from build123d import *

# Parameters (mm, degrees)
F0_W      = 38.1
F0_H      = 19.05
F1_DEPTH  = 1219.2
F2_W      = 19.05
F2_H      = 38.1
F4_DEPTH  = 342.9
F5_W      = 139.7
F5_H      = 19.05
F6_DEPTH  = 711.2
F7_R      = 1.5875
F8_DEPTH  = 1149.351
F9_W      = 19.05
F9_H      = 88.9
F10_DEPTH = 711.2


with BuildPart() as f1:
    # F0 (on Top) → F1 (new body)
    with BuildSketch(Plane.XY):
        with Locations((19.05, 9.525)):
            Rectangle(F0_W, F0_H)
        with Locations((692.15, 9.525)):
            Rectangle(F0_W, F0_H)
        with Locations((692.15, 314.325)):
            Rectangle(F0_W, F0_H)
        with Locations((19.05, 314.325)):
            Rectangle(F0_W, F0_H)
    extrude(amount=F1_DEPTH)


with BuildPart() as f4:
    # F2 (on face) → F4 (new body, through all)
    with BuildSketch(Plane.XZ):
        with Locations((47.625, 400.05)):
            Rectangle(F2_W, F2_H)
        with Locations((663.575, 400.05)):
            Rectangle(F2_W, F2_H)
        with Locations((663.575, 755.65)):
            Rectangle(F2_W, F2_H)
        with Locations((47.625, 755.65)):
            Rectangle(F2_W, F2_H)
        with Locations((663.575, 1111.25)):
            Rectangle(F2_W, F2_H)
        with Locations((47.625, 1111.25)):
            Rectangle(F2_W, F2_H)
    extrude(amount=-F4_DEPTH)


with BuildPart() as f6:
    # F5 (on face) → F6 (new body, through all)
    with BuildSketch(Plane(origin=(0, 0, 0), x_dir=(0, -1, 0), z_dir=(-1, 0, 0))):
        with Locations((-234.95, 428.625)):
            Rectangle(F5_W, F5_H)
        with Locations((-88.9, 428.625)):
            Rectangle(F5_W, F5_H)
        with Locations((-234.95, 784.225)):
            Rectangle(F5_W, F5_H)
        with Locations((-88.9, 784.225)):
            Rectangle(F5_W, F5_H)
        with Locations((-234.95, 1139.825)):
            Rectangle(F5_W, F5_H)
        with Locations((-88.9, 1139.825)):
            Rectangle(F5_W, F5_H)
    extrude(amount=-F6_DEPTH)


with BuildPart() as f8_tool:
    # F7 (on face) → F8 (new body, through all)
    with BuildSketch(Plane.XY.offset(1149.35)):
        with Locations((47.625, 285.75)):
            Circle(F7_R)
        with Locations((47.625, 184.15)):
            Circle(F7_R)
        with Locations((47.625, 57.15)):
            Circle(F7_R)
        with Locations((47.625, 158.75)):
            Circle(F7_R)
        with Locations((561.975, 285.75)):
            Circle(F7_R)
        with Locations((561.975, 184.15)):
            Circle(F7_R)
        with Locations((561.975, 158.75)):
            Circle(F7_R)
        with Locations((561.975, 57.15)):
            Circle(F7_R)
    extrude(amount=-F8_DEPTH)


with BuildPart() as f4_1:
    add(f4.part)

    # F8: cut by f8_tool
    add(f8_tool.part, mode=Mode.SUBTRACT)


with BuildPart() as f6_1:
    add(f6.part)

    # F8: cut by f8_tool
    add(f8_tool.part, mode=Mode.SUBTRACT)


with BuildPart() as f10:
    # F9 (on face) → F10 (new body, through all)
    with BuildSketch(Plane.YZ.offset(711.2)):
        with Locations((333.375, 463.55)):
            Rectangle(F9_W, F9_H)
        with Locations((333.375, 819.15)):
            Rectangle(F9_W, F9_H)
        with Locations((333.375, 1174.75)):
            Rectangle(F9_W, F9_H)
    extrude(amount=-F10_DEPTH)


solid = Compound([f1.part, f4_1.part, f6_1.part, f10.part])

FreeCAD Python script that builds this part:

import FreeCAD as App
import Part
import Sketcher
from FreeCAD import Vector
Q = App.Units.Quantity

doc = App.newDocument("Part")
body = doc.addObject("PartDesign::Body", "Body")
body.AllowCompound = True

# Sketch on XY plane
sketch1 = body.newObject("Sketcher::SketchObject", "Sketch")
sketch1.AttachmentSupport = (doc.getObject("XY_Plane"), [""])
sketch1.MapMode = "FlatFace"
sketch1.addGeometry([
    Part.LineSegment(Vector(0, 19, 0), Vector(0, 0, 0)),  # 0
    Part.LineSegment(Vector(0, 0, 0), Vector(38, 0, 0)),  # 1
    Part.LineSegment(Vector(38, 0, 0), Vector(38, 19, 0)),  # 2
    Part.LineSegment(Vector(38, 19, 0), Vector(0, 19, 0)),  # 3
    Part.LineSegment(Vector(673, 19, 0), Vector(673, 0, 0)),  # 4
    Part.LineSegment(Vector(673, 0, 0), Vector(711, 0, 0)),  # 5
    Part.LineSegment(Vector(711, 0, 0), Vector(711, 19, 0)),  # 6
    Part.LineSegment(Vector(711, 19, 0), Vector(673, 19, 0)),  # 7
    Part.LineSegment(Vector(673, 324, 0), Vector(673, 305, 0)),  # 8
    Part.LineSegment(Vector(673, 305, 0), Vector(711, 305, 0)),  # 9
    Part.LineSegment(Vector(711, 305, 0), Vector(711, 324, 0)),  # 10
    Part.LineSegment(Vector(711, 324, 0), Vector(673, 324, 0)),  # 11
    Part.LineSegment(Vector(0, 324, 0), Vector(0, 305, 0)),  # 12
    Part.LineSegment(Vector(0, 305, 0), Vector(38, 305, 0)),  # 13
    Part.LineSegment(Vector(38, 305, 0), Vector(38, 324, 0)),  # 14
    Part.LineSegment(Vector(38, 324, 0), Vector(0, 324, 0)),  # 15
], False)
sketch1.addConstraint([
    Sketcher.Constraint("Coincident", 0, 2, 1, 1),
    Sketcher.Constraint("Coincident", 1, 2, 2, 1),
    Sketcher.Constraint("Coincident", 2, 2, 3, 1),
    Sketcher.Constraint("Coincident", 3, 2, 0, 1),
    Sketcher.Constraint("Coincident", 4, 2, 5, 1),
    Sketcher.Constraint("Coincident", 5, 2, 6, 1),
    Sketcher.Constraint("Coincident", 6, 2, 7, 1),
    Sketcher.Constraint("Coincident", 7, 2, 4, 1),
    Sketcher.Constraint("Coincident", 8, 2, 9, 1),
    Sketcher.Constraint("Coincident", 9, 2, 10, 1),
    Sketcher.Constraint("Coincident", 10, 2, 11, 1),
    Sketcher.Constraint("Coincident", 11, 2, 8, 1),
    Sketcher.Constraint("Coincident", 12, 2, 13, 1),
    Sketcher.Constraint("Coincident", 13, 2, 14, 1),
    Sketcher.Constraint("Coincident", 14, 2, 15, 1),
    Sketcher.Constraint("Coincident", 15, 2, 12, 1),
    Sketcher.Constraint("Vertical", 0),
    Sketcher.Constraint("Horizontal", 1),
    Sketcher.Constraint("Vertical", 2),
    Sketcher.Constraint("Horizontal", 3),
    Sketcher.Constraint("Vertical", 4),
    Sketcher.Constraint("Horizontal", 5),
    Sketcher.Constraint("Vertical", 6),
    Sketcher.Constraint("Horizontal", 7),
    Sketcher.Constraint("Vertical", 8),
    Sketcher.Constraint("Horizontal", 9),
    Sketcher.Constraint("Vertical", 10),
    Sketcher.Constraint("Horizontal", 11),
    Sketcher.Constraint("Vertical", 12),
    Sketcher.Constraint("Horizontal", 13),
    Sketcher.Constraint("Vertical", 14),
    Sketcher.Constraint("Horizontal", 15),
    Sketcher.Constraint("Coincident", 0, 2, -1, 1),
    Sketcher.Constraint("PointOnObject", 4, 2, -1),
    Sketcher.Constraint("PointOnObject", 12, 2, -2),
    Sketcher.Constraint("Horizontal", 3, 2, 6, 2),
    Sketcher.Constraint("Horizontal", 9, 2, 12, 2),
    Sketcher.Constraint("Horizontal", 11, 2, 14, 2),
    Sketcher.Constraint("Vertical", 7, 2, 8, 2),
    Sketcher.Constraint("Vertical", 6, 2, 9, 2),
    Sketcher.Constraint("Vertical", 2, 2, 13, 2),
    Sketcher.Constraint("Equal", 3, 5),
    Sketcher.Constraint("Equal", 6, 8),
    Sketcher.Constraint("DistanceX", 1, 1, 1, 2, Q("1.5 in")),
    Sketcher.Constraint("DistanceX", -1, 1, 5, 2, Q("28 in")),
    Sketcher.Constraint("DistanceY", -1, 1, 8, 2, Q("12 in")),
    Sketcher.Constraint("DistanceY", 0, 2, 0, 1, Q("0.75 in")),
])
pad1 = body.newObject("PartDesign::Pad", "Pad")
pad1.Profile = sketch1
pad1.Length = Q("48 in")
body2 = doc.addObject("PartDesign::Body", "Body001")
body2.AllowCompound = True

# Sketch on XZ plane
sketch2 = body2.newObject("Sketcher::SketchObject", "Sketch001")
sketch2.AttachmentSupport = (doc.getObject("XZ_Plane001"), [""])
sketch2.MapMode = "FlatFace"
sketch2.addGeometry([
    Part.LineSegment(Vector(38, 419, 0), Vector(38, 381, 0)),  # 0
    Part.LineSegment(Vector(38, 381, 0), Vector(57, 381, 0)),  # 1
    Part.LineSegment(Vector(57, 381, 0), Vector(57, 419, 0)),  # 2
    Part.LineSegment(Vector(57, 419, 0), Vector(38, 419, 0)),  # 3
    Part.LineSegment(Vector(654, 419, 0), Vector(654, 381, 0)),  # 4
    Part.LineSegment(Vector(654, 381, 0), Vector(673, 381, 0)),  # 5
    Part.LineSegment(Vector(673, 381, 0), Vector(673, 419, 0)),  # 6
    Part.LineSegment(Vector(673, 419, 0), Vector(654, 419, 0)),  # 7
    Part.LineSegment(Vector(654, 775, 0), Vector(654, 737, 0)),  # 8
    Part.LineSegment(Vector(654, 737, 0), Vector(673, 737, 0)),  # 9
    Part.LineSegment(Vector(673, 737, 0), Vector(673, 775, 0)),  # 10
    Part.LineSegment(Vector(673, 775, 0), Vector(654, 775, 0)),  # 11
    Part.LineSegment(Vector(38, 775, 0), Vector(38, 737, 0)),  # 12
    Part.LineSegment(Vector(38, 737, 0), Vector(57, 737, 0)),  # 13
    Part.LineSegment(Vector(57, 737, 0), Vector(57, 775, 0)),  # 14
    Part.LineSegment(Vector(57, 775, 0), Vector(38, 775, 0)),  # 15
    Part.LineSegment(Vector(654, 1130, 0), Vector(654, 1092, 0)),  # 16
    Part.LineSegment(Vector(654, 1092, 0), Vector(673, 1092, 0)),  # 17
    Part.LineSegment(Vector(673, 1092, 0), Vector(673, 1130, 0)),  # 18
    Part.LineSegment(Vector(673, 1130, 0), Vector(654, 1130, 0)),  # 19
    Part.LineSegment(Vector(38, 1130, 0), Vector(38, 1092, 0)),  # 20
    Part.LineSegment(Vector(38, 1092, 0), Vector(57, 1092, 0)),  # 21
    Part.LineSegment(Vector(57, 1092, 0), Vector(57, 1130, 0)),  # 22
    Part.LineSegment(Vector(57, 1130, 0), Vector(38, 1130, 0)),  # 23
], False)
sketch2.addConstraint([
    Sketcher.Constraint("Coincident", 0, 2, 1, 1),
    Sketcher.Constraint("Coincident", 1, 2, 2, 1),
    Sketcher.Constraint("Coincident", 2, 2, 3, 1),
    Sketcher.Constraint("Coincident", 3, 2, 0, 1),
    Sketcher.Constraint("Coincident", 4, 2, 5, 1),
    Sketcher.Constraint("Coincident", 5, 2, 6, 1),
    Sketcher.Constraint("Coincident", 6, 2, 7, 1),
    Sketcher.Constraint("Coincident", 7, 2, 4, 1),
    Sketcher.Constraint("Coincident", 8, 2, 9, 1),
    Sketcher.Constraint("Coincident", 9, 2, 10, 1),
    Sketcher.Constraint("Coincident", 10, 2, 11, 1),
    Sketcher.Constraint("Coincident", 11, 2, 8, 1),
    Sketcher.Constraint("Coincident", 12, 2, 13, 1),
    Sketcher.Constraint("Coincident", 13, 2, 14, 1),
    Sketcher.Constraint("Coincident", 14, 2, 15, 1),
    Sketcher.Constraint("Coincident", 15, 2, 12, 1),
    Sketcher.Constraint("Coincident", 16, 2, 17, 1),
    Sketcher.Constraint("Coincident", 17, 2, 18, 1),
    Sketcher.Constraint("Coincident", 18, 2, 19, 1),
    Sketcher.Constraint("Coincident", 19, 2, 16, 1),
    Sketcher.Constraint("Coincident", 20, 2, 21, 1),
    Sketcher.Constraint("Coincident", 21, 2, 22, 1),
    Sketcher.Constraint("Coincident", 22, 2, 23, 1),
    Sketcher.Constraint("Coincident", 23, 2, 20, 1),
    Sketcher.Constraint("Vertical", 0),
    Sketcher.Constraint("Horizontal", 1),
    Sketcher.Constraint("Vertical", 2),
    Sketcher.Constraint("Horizontal", 3),
    Sketcher.Constraint("Vertical", 4),
    Sketcher.Constraint("Horizontal", 5),
    Sketcher.Constraint("Vertical", 6),
    Sketcher.Constraint("Horizontal", 7),
    Sketcher.Constraint("Vertical", 8),
    Sketcher.Constraint("Horizontal", 9),
    Sketcher.Constraint("Vertical", 10),
    Sketcher.Constraint("Horizontal", 11),
    Sketcher.Constraint("Vertical", 12),
    Sketcher.Constraint("Horizontal", 13),
    Sketcher.Constraint("Vertical", 14),
    Sketcher.Constraint("Horizontal", 15),
    Sketcher.Constraint("Vertical", 16),
    Sketcher.Constraint("Horizontal", 17),
    Sketcher.Constraint("Vertical", 18),
    Sketcher.Constraint("Horizontal", 19),
    Sketcher.Constraint("Vertical", 20),
    Sketcher.Constraint("Horizontal", 21),
    Sketcher.Constraint("Vertical", 22),
    Sketcher.Constraint("Horizontal", 23),
    Sketcher.Constraint("Horizontal", 1, 2, 4, 2),
    Sketcher.Constraint("Horizontal", 3, 2, 6, 2),
    Sketcher.Constraint("Horizontal", 9, 2, 12, 2),
    Sketcher.Constraint("Horizontal", 11, 2, 14, 2),
    Sketcher.Constraint("Horizontal", 17, 2, 20, 2),
    Sketcher.Constraint("Horizontal", 19, 2, 22, 2),
    Sketcher.Constraint("Vertical", 7, 2, 8, 2),
    Sketcher.Constraint("Vertical", 6, 2, 9, 2),
    Sketcher.Constraint("Vertical", 3, 2, 12, 2),
    Sketcher.Constraint("Vertical", 2, 2, 13, 2),
    Sketcher.Constraint("Vertical", 11, 2, 16, 2),
    Sketcher.Constraint("Vertical", 10, 2, 17, 2),
    Sketcher.Constraint("Vertical", 15, 2, 20, 2),
    Sketcher.Constraint("Vertical", 14, 2, 21, 2),
    Sketcher.Constraint("Equal", 3, 5),
    Sketcher.Constraint("Equal", 6, 8),
    Sketcher.Constraint("Equal", 14, 16),
    Sketcher.Constraint("DistanceY", 0, 2, 0, 1, Q("1.5 in")),
    Sketcher.Constraint("DistanceY", -1, 1, 0, 2, Q("15 in")),
    Sketcher.Constraint("DistanceY", -1, 1, 8, 2, Q("29 in")),
    Sketcher.Constraint("DistanceY", -1, 1, 16, 2, Q("43 in")),
    Sketcher.Constraint("DistanceX", 0, 2, 5, 2, Q("25 in")),
    Sketcher.Constraint("DistanceX", 1, 1, 1, 2, Q("0.75 in")),
    Sketcher.Constraint("DistanceX", -1, 1, 0, 2, Q("1.5 in")),
])
pad2 = body2.newObject("PartDesign::Pad", "Pad001")
pad2.Profile = sketch2
pad2.Length = Q("13.5 in")
pad2.Reversed = True
body3 = doc.addObject("PartDesign::Body", "Body002")
body3.AllowCompound = True

# Sketch on YZ plane
sketch3 = body3.newObject("Sketcher::SketchObject", "Sketch002")
sketch3.AttachmentSupport = (doc.getObject("YZ_Plane002"), [""])
sketch3.MapMode = "FlatFace"
sketch3.addGeometry([
    Part.LineSegment(Vector(305, 438, 0), Vector(305, 419, 0)),  # 0
    Part.LineSegment(Vector(305, 419, 0), Vector(165, 419, 0)),  # 1
    Part.LineSegment(Vector(165, 419, 0), Vector(165, 438, 0)),  # 2
    Part.LineSegment(Vector(165, 438, 0), Vector(305, 438, 0)),  # 3
    Part.LineSegment(Vector(159, 438, 0), Vector(159, 419, 0)),  # 4
    Part.LineSegment(Vector(159, 419, 0), Vector(19, 419, 0)),  # 5
    Part.LineSegment(Vector(19, 419, 0), Vector(19, 438, 0)),  # 6
    Part.LineSegment(Vector(19, 438, 0), Vector(159, 438, 0)),  # 7
    Part.LineSegment(Vector(305, 794, 0), Vector(305, 775, 0)),  # 8
    Part.LineSegment(Vector(305, 775, 0), Vector(165, 775, 0)),  # 9
    Part.LineSegment(Vector(165, 775, 0), Vector(165, 794, 0)),  # 10
    Part.LineSegment(Vector(165, 794, 0), Vector(305, 794, 0)),  # 11
    Part.LineSegment(Vector(159, 794, 0), Vector(159, 775, 0)),  # 12
    Part.LineSegment(Vector(159, 775, 0), Vector(19, 775, 0)),  # 13
    Part.LineSegment(Vector(19, 775, 0), Vector(19, 794, 0)),  # 14
    Part.LineSegment(Vector(19, 794, 0), Vector(159, 794, 0)),  # 15
    Part.LineSegment(Vector(305, 1149, 0), Vector(305, 1130, 0)),  # 16
    Part.LineSegment(Vector(305, 1130, 0), Vector(165, 1130, 0)),  # 17
    Part.LineSegment(Vector(165, 1130, 0), Vector(165, 1149, 0)),  # 18
    Part.LineSegment(Vector(165, 1149, 0), Vector(305, 1149, 0)),  # 19
    Part.LineSegment(Vector(159, 1149, 0), Vector(159, 1130, 0)),  # 20
    Part.LineSegment(Vector(159, 1130, 0), Vector(19, 1130, 0)),  # 21
    Part.LineSegment(Vector(19, 1130, 0), Vector(19, 1149, 0)),  # 22
    Part.LineSegment(Vector(19, 1149, 0), Vector(159, 1149, 0)),  # 23
], False)
sketch3.addConstraint([
    Sketcher.Constraint("Coincident", 0, 2, 1, 1),
    Sketcher.Constraint("Coincident", 1, 2, 2, 1),
    Sketcher.Constraint("Coincident", 2, 2, 3, 1),
    Sketcher.Constraint("Coincident", 3, 2, 0, 1),
    Sketcher.Constraint("Coincident", 4, 2, 5, 1),
    Sketcher.Constraint("Coincident", 5, 2, 6, 1),
    Sketcher.Constraint("Coincident", 6, 2, 7, 1),
    Sketcher.Constraint("Coincident", 7, 2, 4, 1),
    Sketcher.Constraint("Coincident", 8, 2, 9, 1),
    Sketcher.Constraint("Coincident", 9, 2, 10, 1),
    Sketcher.Constraint("Coincident", 10, 2, 11, 1),
    Sketcher.Constraint("Coincident", 11, 2, 8, 1),
    Sketcher.Constraint("Coincident", 12, 2, 13, 1),
    Sketcher.Constraint("Coincident", 13, 2, 14, 1),
    Sketcher.Constraint("Coincident", 14, 2, 15, 1),
    Sketcher.Constraint("Coincident", 15, 2, 12, 1),
    Sketcher.Constraint("Coincident", 16, 2, 17, 1),
    Sketcher.Constraint("Coincident", 17, 2, 18, 1),
    Sketcher.Constraint("Coincident", 18, 2, 19, 1),
    Sketcher.Constraint("Coincident", 19, 2, 16, 1),
    Sketcher.Constraint("Coincident", 20, 2, 21, 1),
    Sketcher.Constraint("Coincident", 21, 2, 22, 1),
    Sketcher.Constraint("Coincident", 22, 2, 23, 1),
    Sketcher.Constraint("Coincident", 23, 2, 20, 1),
    Sketcher.Constraint("Vertical", 0),
    Sketcher.Constraint("Horizontal", 1),
    Sketcher.Constraint("Vertical", 2),
    Sketcher.Constraint("Horizontal", 3),
    Sketcher.Constraint("Vertical", 4),
    Sketcher.Constraint("Horizontal", 5),
    Sketcher.Constraint("Vertical", 6),
    Sketcher.Constraint("Horizontal", 7),
    Sketcher.Constraint("Vertical", 8),
    Sketcher.Constraint("Horizontal", 9),
    Sketcher.Constraint("Vertical", 10),
    Sketcher.Constraint("Horizontal", 11),
    Sketcher.Constraint("Vertical", 12),
    Sketcher.Constraint("Horizontal", 13),
    Sketcher.Constraint("Vertical", 14),
    Sketcher.Constraint("Horizontal", 15),
    Sketcher.Constraint("Vertical", 16),
    Sketcher.Constraint("Horizontal", 17),
    Sketcher.Constraint("Vertical", 18),
    Sketcher.Constraint("Horizontal", 19),
    Sketcher.Constraint("Vertical", 20),
    Sketcher.Constraint("Horizontal", 21),
    Sketcher.Constraint("Vertical", 22),
    Sketcher.Constraint("Horizontal", 23),
    Sketcher.Constraint("Horizontal", 1, 2, 4, 2),
    Sketcher.Constraint("Horizontal", 3, 2, 6, 2),
    Sketcher.Constraint("Horizontal", 9, 2, 12, 2),
    Sketcher.Constraint("Horizontal", 11, 2, 14, 2),
    Sketcher.Constraint("Horizontal", 17, 2, 20, 2),
    Sketcher.Constraint("Horizontal", 19, 2, 22, 2),
    Sketcher.Constraint("Vertical", 3, 2, 8, 2),
    Sketcher.Constraint("Vertical", 2, 2, 9, 2),
    Sketcher.Constraint("Vertical", 7, 2, 12, 2),
    Sketcher.Constraint("Vertical", 6, 2, 13, 2),
    Sketcher.Constraint("Vertical", 11, 2, 16, 2),
    Sketcher.Constraint("Vertical", 10, 2, 17, 2),
    Sketcher.Constraint("Vertical", 15, 2, 20, 2),
    Sketcher.Constraint("Vertical", 14, 2, 21, 2),
    Sketcher.Constraint("Equal", 3, 5),
    Sketcher.Constraint("Equal", 6, 8),
    Sketcher.Constraint("Equal", 14, 16),
    Sketcher.Constraint("DistanceX", 1, 2, 1, 1, Q("5.5 in")),
    Sketcher.Constraint("DistanceX", -1, 1, 0, 2, Q("12 in")),
    Sketcher.Constraint("DistanceY", 0, 2, 8, 2, Q("14 in")),
    Sketcher.Constraint("DistanceY", 8, 2, 16, 2, Q("14 in")),
    Sketcher.Constraint("DistanceY", 0, 2, 0, 1, Q("0.75 in")),
    Sketcher.Constraint("DistanceY", -1, 1, 0, 2, Q("16.5 in")),
    Sketcher.Constraint("DistanceX", -1, 1, 4, 2, Q("6.25 in")),
])
pad3 = body3.newObject("PartDesign::Pad", "Pad002")
pad3.Profile = sketch3
pad3.Length = Q("28 in")
body4 = doc.addObject("PartDesign::Body", "Body003")
body4.AllowCompound = True

# Sketch on XY plane
sketch4 = body4.newObject("Sketcher::SketchObject", "Sketch003")
sketch4.AttachmentSupport = (doc.getObject("XY_Plane003"), [""])
sketch4.MapMode = "FlatFace"
sketch4.AttachmentOffset = App.Placement(Vector(0, 0, 45.25 * 25.4), App.Rotation())
sketch4.addGeometry([
    Part.Circle(Vector(47.6, 285.8, 0), Vector(0, 0, 1), 1.6),  # 0
    Part.Circle(Vector(47.6, 184.2, 0), Vector(0, 0, 1), 1.6),  # 1
    Part.Circle(Vector(47.6, 57.1, 0), Vector(0, 0, 1), 1.6),  # 2
    Part.Circle(Vector(47.6, 158.8, 0), Vector(0, 0, 1), 1.6),  # 3
    Part.Circle(Vector(562, 285.8, 0), Vector(0, 0, 1), 1.6),  # 4
    Part.Circle(Vector(562, 184.2, 0), Vector(0, 0, 1), 1.6),  # 5
    Part.Circle(Vector(562, 158.8, 0), Vector(0, 0, 1), 1.6),  # 6
    Part.Circle(Vector(562, 57.1, 0), Vector(0, 0, 1), 1.6),  # 7
], False)
sketch4.addConstraint([
    Sketcher.Constraint("Equal", 0, 1),
    Sketcher.Constraint("Equal", 1, 2),
    Sketcher.Constraint("Equal", 2, 3),
    Sketcher.Constraint("Equal", 3, 4),
    Sketcher.Constraint("Equal", 4, 5),
    Sketcher.Constraint("Equal", 5, 6),
    Sketcher.Constraint("Equal", 6, 7),
    Sketcher.Constraint("Horizontal", 0, 3, 4, 3),
    Sketcher.Constraint("Horizontal", 1, 3, 5, 3),
    Sketcher.Constraint("Horizontal", 3, 3, 6, 3),
    Sketcher.Constraint("Horizontal", 2, 3, 7, 3),
    Sketcher.Constraint("Vertical", 0, 3, 1, 3),
    Sketcher.Constraint("Vertical", 1, 3, 2, 3),
    Sketcher.Constraint("Vertical", 2, 3, 3, 3),
    Sketcher.Constraint("Vertical", 4, 3, 5, 3),
    Sketcher.Constraint("Vertical", 5, 3, 6, 3),
    Sketcher.Constraint("Vertical", 6, 3, 7, 3),
    Sketcher.Constraint("Diameter", 0, Q("0.125 in")),
    Sketcher.Constraint("DistanceY", 1, 3, 0, 3, Q("4 in")),
    Sketcher.Constraint("DistanceY", 2, 3, 1, 3, Q("5 in")),
    Sketcher.Constraint("DistanceY", 3, 3, 1, 3, Q("1 in")),
    Sketcher.Constraint("DistanceY", -1, 1, 0, 3, Q("11.25 in")),
    Sketcher.Constraint("DistanceX", 0, 3, 4, 3, Q("20.25 in")),
    Sketcher.Constraint("DistanceX", -1, 1, 0, 3, Q("1.875 in")),
])
pad4 = body4.newObject("PartDesign::Pad", "Pad003")
pad4.Profile = sketch4
pad4.Length = 1149.351
pad4.Reversed = True
body2.AllowCompound = True
doc.recompute()

body5 = doc.addObject("PartDesign::Body", "Body004")
body5.BaseFeature = body4
boolean = body2.newObject("PartDesign::Boolean", "Boolean")
boolean.Type = "Cut"
boolean.addObjects([body5])
doc.recompute()
body3.AllowCompound = True
doc.recompute()

boolean2 = body3.newObject("PartDesign::Boolean", "Boolean001")
boolean2.Type = "Cut"
boolean2.addObjects([body4])
body6 = doc.addObject("PartDesign::Body", "Body005")
body6.AllowCompound = True

# Sketch on YZ plane
sketch5 = body6.newObject("Sketcher::SketchObject", "Sketch004")
sketch5.AttachmentSupport = (doc.getObject("YZ_Plane005"), [""])
sketch5.MapMode = "FlatFace"
sketch5.AttachmentOffset = App.Placement(Vector(0, 0, 28 * 25.4), App.Rotation())
sketch5.addGeometry([
    Part.LineSegment(Vector(324, 508, 0), Vector(324, 419, 0)),  # 0
    Part.LineSegment(Vector(324, 419, 0), Vector(343, 419, 0)),  # 1
    Part.LineSegment(Vector(343, 419, 0), Vector(343, 508, 0)),  # 2
    Part.LineSegment(Vector(343, 508, 0), Vector(324, 508, 0)),  # 3
    Part.LineSegment(Vector(324, 864, 0), Vector(324, 775, 0)),  # 4
    Part.LineSegment(Vector(324, 775, 0), Vector(343, 775, 0)),  # 5
    Part.LineSegment(Vector(343, 775, 0), Vector(343, 864, 0)),  # 6
    Part.LineSegment(Vector(343, 864, 0), Vector(324, 864, 0)),  # 7
    Part.LineSegment(Vector(324, 1219, 0), Vector(324, 1130, 0)),  # 8
    Part.LineSegment(Vector(324, 1130, 0), Vector(343, 1130, 0)),  # 9
    Part.LineSegment(Vector(343, 1130, 0), Vector(343, 1219, 0)),  # 10
    Part.LineSegment(Vector(343, 1219, 0), Vector(324, 1219, 0)),  # 11
], False)
sketch5.addConstraint([
    Sketcher.Constraint("Coincident", 0, 2, 1, 1),
    Sketcher.Constraint("Coincident", 1, 2, 2, 1),
    Sketcher.Constraint("Coincident", 2, 2, 3, 1),
    Sketcher.Constraint("Coincident", 3, 2, 0, 1),
    Sketcher.Constraint("Coincident", 4, 2, 5, 1),
    Sketcher.Constraint("Coincident", 5, 2, 6, 1),
    Sketcher.Constraint("Coincident", 6, 2, 7, 1),
    Sketcher.Constraint("Coincident", 7, 2, 4, 1),
    Sketcher.Constraint("Coincident", 8, 2, 9, 1),
    Sketcher.Constraint("Coincident", 9, 2, 10, 1),
    Sketcher.Constraint("Coincident", 10, 2, 11, 1),
    Sketcher.Constraint("Coincident", 11, 2, 8, 1),
    Sketcher.Constraint("Vertical", 0),
    Sketcher.Constraint("Horizontal", 1),
    Sketcher.Constraint("Vertical", 2),
    Sketcher.Constraint("Horizontal", 3),
    Sketcher.Constraint("Vertical", 4),
    Sketcher.Constraint("Horizontal", 5),
    Sketcher.Constraint("Vertical", 6),
    Sketcher.Constraint("Horizontal", 7),
    Sketcher.Constraint("Vertical", 8),
    Sketcher.Constraint("Horizontal", 9),
    Sketcher.Constraint("Vertical", 10),
    Sketcher.Constraint("Horizontal", 11),
    Sketcher.Constraint("Vertical", 3, 2, 4, 2),
    Sketcher.Constraint("Vertical", 2, 2, 5, 2),
    Sketcher.Constraint("Vertical", 7, 2, 8, 2),
    Sketcher.Constraint("Vertical", 6, 2, 9, 2),
    Sketcher.Constraint("Equal", 2, 4),
    Sketcher.Constraint("Equal", 6, 8),
    Sketcher.Constraint("DistanceY", 0, 2, 0, 1, Q("3.5 in")),
    Sketcher.Constraint("DistanceY", -1, 1, 2, 2, Q("20 in")),
    Sketcher.Constraint("DistanceY", -1, 1, 6, 2, Q("34 in")),
    Sketcher.Constraint("DistanceY", -1, 1, 10, 2, Q("48 in")),
    Sketcher.Constraint("DistanceX", 1, 1, 1, 2, Q("0.75 in")),
    Sketcher.Constraint("DistanceX", -1, 1, 1, 2, Q("13.5 in")),
])
pad5 = body6.newObject("PartDesign::Pad", "Pad004")
pad5.Profile = sketch5
pad5.Length = Q("28 in")
pad5.Reversed = True

doc.recompute()
